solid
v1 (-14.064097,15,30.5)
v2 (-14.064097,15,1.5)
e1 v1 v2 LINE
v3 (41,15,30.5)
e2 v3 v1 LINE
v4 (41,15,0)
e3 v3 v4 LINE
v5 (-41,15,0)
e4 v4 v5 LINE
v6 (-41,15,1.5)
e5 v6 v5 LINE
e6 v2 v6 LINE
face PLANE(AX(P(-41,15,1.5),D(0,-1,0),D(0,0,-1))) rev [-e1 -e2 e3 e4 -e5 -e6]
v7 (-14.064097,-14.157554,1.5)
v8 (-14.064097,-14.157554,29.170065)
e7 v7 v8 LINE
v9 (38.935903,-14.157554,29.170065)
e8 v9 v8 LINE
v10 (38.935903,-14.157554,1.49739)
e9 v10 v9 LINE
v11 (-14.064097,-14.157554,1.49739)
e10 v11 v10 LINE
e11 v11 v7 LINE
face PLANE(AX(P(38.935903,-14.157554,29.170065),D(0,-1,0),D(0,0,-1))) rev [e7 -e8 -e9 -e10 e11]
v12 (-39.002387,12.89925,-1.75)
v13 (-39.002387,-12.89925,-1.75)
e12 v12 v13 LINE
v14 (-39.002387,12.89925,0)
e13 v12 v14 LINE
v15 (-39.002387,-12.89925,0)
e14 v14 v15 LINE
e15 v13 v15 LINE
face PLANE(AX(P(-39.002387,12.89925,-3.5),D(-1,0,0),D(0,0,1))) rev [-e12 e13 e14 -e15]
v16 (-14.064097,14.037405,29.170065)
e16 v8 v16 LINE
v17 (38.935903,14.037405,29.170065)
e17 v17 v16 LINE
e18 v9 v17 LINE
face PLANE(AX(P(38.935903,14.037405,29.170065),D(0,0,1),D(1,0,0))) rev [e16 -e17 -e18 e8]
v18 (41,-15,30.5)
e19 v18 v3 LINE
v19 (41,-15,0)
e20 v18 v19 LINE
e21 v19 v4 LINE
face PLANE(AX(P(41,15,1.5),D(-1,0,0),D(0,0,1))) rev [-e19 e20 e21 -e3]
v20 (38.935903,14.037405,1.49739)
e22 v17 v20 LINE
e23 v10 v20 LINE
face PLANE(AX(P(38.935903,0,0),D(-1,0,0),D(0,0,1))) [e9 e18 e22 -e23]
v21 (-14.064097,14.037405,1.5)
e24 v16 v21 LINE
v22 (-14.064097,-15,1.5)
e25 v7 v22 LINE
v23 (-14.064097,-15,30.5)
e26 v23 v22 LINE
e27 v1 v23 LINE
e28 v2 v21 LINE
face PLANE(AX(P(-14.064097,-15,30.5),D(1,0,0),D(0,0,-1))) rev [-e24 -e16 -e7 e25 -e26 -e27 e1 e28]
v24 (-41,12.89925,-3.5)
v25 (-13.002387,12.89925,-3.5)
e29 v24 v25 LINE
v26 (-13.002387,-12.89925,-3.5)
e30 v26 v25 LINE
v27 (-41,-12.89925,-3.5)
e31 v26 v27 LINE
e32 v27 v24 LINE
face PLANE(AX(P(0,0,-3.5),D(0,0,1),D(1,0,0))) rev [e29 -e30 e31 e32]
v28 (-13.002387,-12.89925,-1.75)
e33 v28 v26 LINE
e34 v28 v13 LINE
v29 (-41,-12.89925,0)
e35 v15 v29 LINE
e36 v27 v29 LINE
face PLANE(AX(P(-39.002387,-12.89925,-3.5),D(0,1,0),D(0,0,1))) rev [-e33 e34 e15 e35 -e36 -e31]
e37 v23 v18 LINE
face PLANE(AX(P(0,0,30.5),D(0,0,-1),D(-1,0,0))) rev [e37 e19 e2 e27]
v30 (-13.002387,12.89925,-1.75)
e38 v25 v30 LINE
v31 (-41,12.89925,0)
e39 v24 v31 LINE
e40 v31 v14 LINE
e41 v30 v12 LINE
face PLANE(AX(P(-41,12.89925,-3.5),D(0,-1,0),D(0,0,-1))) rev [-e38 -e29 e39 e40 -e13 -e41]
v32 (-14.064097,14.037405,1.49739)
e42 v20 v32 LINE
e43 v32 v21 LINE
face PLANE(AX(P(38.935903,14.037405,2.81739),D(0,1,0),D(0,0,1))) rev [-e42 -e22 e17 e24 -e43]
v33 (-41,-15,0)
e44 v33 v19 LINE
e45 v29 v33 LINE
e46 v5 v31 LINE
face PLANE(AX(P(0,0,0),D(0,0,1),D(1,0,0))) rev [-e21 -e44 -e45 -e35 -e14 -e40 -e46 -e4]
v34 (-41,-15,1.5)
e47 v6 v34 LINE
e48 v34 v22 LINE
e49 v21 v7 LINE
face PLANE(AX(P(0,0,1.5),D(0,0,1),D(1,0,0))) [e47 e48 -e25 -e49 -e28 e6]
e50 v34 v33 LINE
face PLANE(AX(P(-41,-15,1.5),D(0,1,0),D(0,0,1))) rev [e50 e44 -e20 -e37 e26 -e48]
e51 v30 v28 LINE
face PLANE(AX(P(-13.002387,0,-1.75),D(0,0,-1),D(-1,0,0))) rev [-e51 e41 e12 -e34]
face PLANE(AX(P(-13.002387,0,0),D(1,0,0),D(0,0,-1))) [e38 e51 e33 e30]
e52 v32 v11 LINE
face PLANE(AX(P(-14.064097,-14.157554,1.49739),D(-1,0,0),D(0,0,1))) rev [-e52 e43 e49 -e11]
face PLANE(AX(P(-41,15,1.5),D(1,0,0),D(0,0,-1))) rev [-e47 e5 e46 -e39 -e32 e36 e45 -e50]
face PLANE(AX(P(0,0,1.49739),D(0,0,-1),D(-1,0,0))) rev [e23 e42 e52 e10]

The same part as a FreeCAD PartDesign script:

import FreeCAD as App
import Part
import Sketcher
from FreeCAD import Vector


def add_polygon(sketch, points):
    """Adds a closed chain of lines whose ends are joined by coincident constraints."""
    first, n = sketch.GeometryCount, len(points)
    for a, b in zip(points, points[1:] + points[:1]):
        sketch.addGeometry(Part.LineSegment(App.Vector(*a, 0), App.Vector(*b, 0)), False)
    for i in range(n):
        sketch.addConstraint(Sketcher.Constraint("Coincident", first + i, 2, first + (i + 1) % n, 1))

doc = App.newDocument("Part")
body = doc.addObject("PartDesign::Body", "Body")

# Sketch on XY plane
sketch1 = doc.addObject("Sketcher::SketchObject", "Sketch")
body.addObject(sketch1)
sketch1.AttachmentSupport = (doc.XY_Plane, [""])
sketch1.MapMode = "FlatFace"
add_polygon(sketch1, [(-41, 15), (-41, -15), (41, -15), (41, 15)])  # lines 0-3
sketch1.addConstraint([
    Sketcher.Constraint("Vertical", 0),
    Sketcher.Constraint("Horizontal", 1),
    Sketcher.Constraint("Vertical", 2),
    Sketcher.Constraint("Horizontal", 3),
    Sketcher.Constraint("Symmetric", 0, 2, 2, 2, -1, 1),
    Sketcher.Constraint("DistanceX", 1, 1, 1, 2, 82.0),
    Sketcher.Constraint("DistanceY", 0, 2, 0, 1, 30.0),
])
pad1 = doc.addObject("PartDesign::Pad", "Pad")
body.addObject(pad1)
pad1.Profile = sketch1
pad1.Length = 1.5

# Sketch on XY plane
sketch2 = doc.addObject("Sketcher::SketchObject", "Sketch001")
body.addObject(sketch2)
sketch2.AttachmentSupport = (doc.XY_Plane, [""])
sketch2.MapMode = "FlatFace"
add_polygon(sketch2, [(-39.002387, 12.89925), (-39.002387, -12.89925), (-41, -12.89925), (-41, 12.89925)])  # lines 0-3
sketch2.addConstraint([
    Sketcher.Constraint("Vertical", 0),
    Sketcher.Constraint("Horizontal", 1),
    Sketcher.Constraint("Vertical", 2),
    Sketcher.Constraint("Horizontal", 3),
    Sketcher.Constraint("DistanceX", 1, 2, -1, 1, 41.0),
    Sketcher.Constraint("DistanceY", 0, 2, 0, 1, 25.7985),
    Sketcher.Constraint("DistanceX", 1, 2, 1, 1, 1.997613),
    Sketcher.Constraint("DistanceY", 0, 2, -1, 1, 12.89925),
])
pad2 = doc.addObject("PartDesign::Pad", "Pad001")
body.addObject(pad2)
pad2.Profile = sketch2
pad2.Length = 3.5
pad2.Reversed = True

# Sketch on YZ plane
sketch3 = doc.addObject("Sketcher::SketchObject", "Sketch002")
body.addObject(sketch3)
sketch3.AttachmentSupport = (doc.YZ_Plane, [""])
sketch3.MapMode = "FlatFace"
sketch3.AttachmentOffset = App.Placement(Vector(0, 0, -39.002387), App.Rotation())
add_polygon(sketch3, [(12.89925, -1.75), (-12.89925, -1.75), (-12.89925, -3.5), (12.89925, -3.5)])  # lines 0-3
sketch3.addConstraint([
    Sketcher.Constraint("Horizontal", 0),
    Sketcher.Constraint("Vertical", 1),
    Sketcher.Constraint("Horizontal", 2),
    Sketcher.Constraint("Vertical", 3),
    Sketcher.Constraint("DistanceY", 1, 2, 1, 1, 1.75),
    Sketcher.Constraint("DistanceY", 1, 2, -1, 1, 3.5),
    Sketcher.Constraint("DistanceX", 0, 2, 0, 1, 25.7985),
    Sketcher.Constraint("DistanceX", 0, 2, -1, 1, 12.89925),
])
pad3 = doc.addObject("PartDesign::Pad", "Pad002")
body.addObject(pad3)
pad3.Profile = sketch3
pad3.Length = 26

# Sketch on XY plane
sketch4 = doc.addObject("Sketcher::SketchObject", "Sketch003")
body.addObject(sketch4)
sketch4.AttachmentSupport = (doc.XY_Plane, [""])
sketch4.MapMode = "FlatFace"
sketch4.AttachmentOffset = App.Placement(Vector(0, 0, 1.5), App.Rotation())
add_polygon(sketch4, [(-14.064097, 15), (-14.064097, -15), (41, -15), (41, 15)])  # lines 0-3
sketch4.addConstraint([
    Sketcher.Constraint("Vertical", 0),
    Sketcher.Constraint("Horizontal", 1),
    Sketcher.Constraint("Vertical", 2),
    Sketcher.Constraint("Horizontal", 3),
    Sketcher.Constraint("DistanceY", 0, 2, 0, 1, 30.0),
    Sketcher.Constraint("DistanceY", 0, 2, -1, 1, 15.0),
    Sketcher.Constraint("DistanceX", -1, 1, 1, 2, 41.0),
    Sketcher.Constraint("DistanceX", 1, 1, 1, 2, 55.064097),
])
pad4 = doc.addObject("PartDesign::Pad", "Pad003")
body.addObject(pad4)
pad4.Profile = sketch4
pad4.Length = 29

# Sketch on YZ plane
sketch5 = doc.addObject("Sketcher::SketchObject", "Sketch004")
body.addObject(sketch5)
sketch5.AttachmentSupport = (doc.YZ_Plane, [""])
sketch5.MapMode = "FlatFace"
sketch5.AttachmentOffset = App.Placement(Vector(0, 0, -14.064097), App.Rotation())
add_polygon(sketch5, [(14.037405, 2.81739), (-14.157554, 2.81739), (-14.157554, 29.170065), (14.037405, 29.170065)])  # lines 0-3
sketch5.addConstraint([
    Sketcher.Constraint("Horizontal", 0),
    Sketcher.Constraint("Vertical", 1),
    Sketcher.Constraint("Horizontal", 2),
    Sketcher.Constraint("Vertical", 3),
    Sketcher.Constraint("DistanceX", 0, 2, 0, 1, 28.19496),
    Sketcher.Constraint("DistanceY", 1, 1, 1, 2, 26.352675),
    Sketcher.Constraint("DistanceY", -1, 1, 0, 2, 2.81739),
    Sketcher.Constraint("DistanceX", 0, 2, -1, 1, 14.157554),
])
pocket1 = doc.addObject("PartDesign::Pocket", "Pocket")
body.addObject(pocket1)
pocket1.Profile = sketch5
pocket1.Length = 53
pocket1.Reversed = True

# Sketch on XY plane
sketch6 = doc.addObject("Sketcher::SketchObject", "Sketch005")
body.addObject(sketch6)
sketch6.AttachmentSupport = (doc.XY_Plane, [""])
sketch6.MapMode = "FlatFace"
sketch6.AttachmentOffset = App.Placement(Vector(0, 0, 2.81739), App.Rotation())
add_polygon(sketch6, [(-14.064097, 14.037405), (-14.064097, -14.157554), (38.935903, -14.157554), (38.935903, 14.037405)])  # lines 0-3
sketch6.addConstraint([
    Sketcher.Constraint("Vertical", 0),
    Sketcher.Constraint("Horizontal", 1),
    Sketcher.Constraint("Vertical", 2),
    Sketcher.Constraint("Horizontal", 3),
    Sketcher.Constraint("DistanceX", 1, 1, 1, 2, 53.0),
    Sketcher.Constraint("DistanceY", 0, 2, 0, 1, 28.19496),
    Sketcher.Constraint("DistanceX", 0, 2, -1, 1, 14.064097),
    Sketcher.Constraint("DistanceY", 0, 2, -1, 1, 14.157554),
])
pocket2 = doc.addObject("PartDesign::Pocket", "Pocket001")
body.addObject(pocket2)
pocket2.Profile = sketch6
pocket2.Length = 1.32

doc.recompute()
